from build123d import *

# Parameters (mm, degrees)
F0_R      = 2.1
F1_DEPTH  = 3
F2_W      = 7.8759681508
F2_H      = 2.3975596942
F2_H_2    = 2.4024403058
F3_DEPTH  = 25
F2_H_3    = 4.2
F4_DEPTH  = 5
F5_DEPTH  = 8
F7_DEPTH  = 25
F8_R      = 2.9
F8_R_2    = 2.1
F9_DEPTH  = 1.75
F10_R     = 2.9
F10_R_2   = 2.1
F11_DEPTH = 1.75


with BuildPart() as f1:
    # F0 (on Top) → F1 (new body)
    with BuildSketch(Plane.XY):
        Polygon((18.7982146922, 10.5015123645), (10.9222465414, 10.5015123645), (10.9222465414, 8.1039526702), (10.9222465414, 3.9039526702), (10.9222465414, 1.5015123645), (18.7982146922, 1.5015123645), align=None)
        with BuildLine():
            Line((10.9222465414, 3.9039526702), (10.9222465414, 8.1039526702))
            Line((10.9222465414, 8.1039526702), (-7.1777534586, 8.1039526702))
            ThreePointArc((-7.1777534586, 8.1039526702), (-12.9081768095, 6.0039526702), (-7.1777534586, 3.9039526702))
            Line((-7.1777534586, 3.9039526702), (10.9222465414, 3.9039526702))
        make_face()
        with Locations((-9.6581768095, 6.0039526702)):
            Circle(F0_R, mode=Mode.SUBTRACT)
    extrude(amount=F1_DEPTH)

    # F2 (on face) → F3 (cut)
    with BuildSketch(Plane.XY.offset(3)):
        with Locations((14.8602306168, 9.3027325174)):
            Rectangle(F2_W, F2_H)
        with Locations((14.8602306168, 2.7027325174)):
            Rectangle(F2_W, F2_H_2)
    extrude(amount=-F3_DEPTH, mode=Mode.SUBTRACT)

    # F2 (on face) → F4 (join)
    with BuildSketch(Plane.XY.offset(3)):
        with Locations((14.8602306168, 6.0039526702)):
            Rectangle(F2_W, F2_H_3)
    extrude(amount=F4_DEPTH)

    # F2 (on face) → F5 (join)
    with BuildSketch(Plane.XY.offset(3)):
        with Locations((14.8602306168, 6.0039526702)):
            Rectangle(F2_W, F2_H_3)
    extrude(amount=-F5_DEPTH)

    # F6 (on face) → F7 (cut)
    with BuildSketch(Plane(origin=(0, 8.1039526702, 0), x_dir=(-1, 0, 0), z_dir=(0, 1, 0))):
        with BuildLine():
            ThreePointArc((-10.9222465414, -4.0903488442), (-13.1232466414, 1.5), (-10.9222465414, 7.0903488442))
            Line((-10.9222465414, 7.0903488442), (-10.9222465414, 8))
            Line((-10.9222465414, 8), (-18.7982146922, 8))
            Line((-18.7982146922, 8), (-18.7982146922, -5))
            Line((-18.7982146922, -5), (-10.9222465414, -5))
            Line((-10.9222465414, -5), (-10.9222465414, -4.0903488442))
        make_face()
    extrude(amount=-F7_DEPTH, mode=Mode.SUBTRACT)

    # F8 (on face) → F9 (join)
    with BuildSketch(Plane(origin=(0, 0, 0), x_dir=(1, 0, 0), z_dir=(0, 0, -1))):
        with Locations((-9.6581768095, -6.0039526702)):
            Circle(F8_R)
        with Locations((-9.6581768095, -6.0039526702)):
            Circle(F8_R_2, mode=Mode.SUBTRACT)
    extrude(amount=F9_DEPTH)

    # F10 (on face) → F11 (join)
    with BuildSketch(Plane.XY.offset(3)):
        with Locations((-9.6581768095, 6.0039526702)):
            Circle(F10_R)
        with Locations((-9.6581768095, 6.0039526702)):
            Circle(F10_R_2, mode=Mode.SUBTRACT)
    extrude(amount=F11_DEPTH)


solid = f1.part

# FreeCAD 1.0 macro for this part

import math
import FreeCAD as App
import Part
import Sketcher
from FreeCAD import Vector
Q = App.Units.Quantity

doc = App.newDocument("Part")
params = doc.addObject("Spreadsheet::Sheet", "Params")
for row, (alias, value) in enumerate([
    ("sketch1_diameter", "4.2 mm"),
    ("sketch1_height", "9 mm"),
    ("sketch1_radius", "3.25 mm"),
    ("sketch1_width", "18.1 mm"),
    ("pad1_length", "3 mm"),
    ("pocket1_length", "25 mm"),
    ("sketch3_height", "4.2 mm"),
    ("pad2_length", "5 mm"),
    ("sketch4_height", "4.2 mm"),
    ("pad3_length", "8 mm"),
    ("sketch5_radius", "8.2 mm"),
    ("sketch5_height", "13 mm"),
    ("pocket2_length", "25 mm"),
    ("sketch6_diameter", "5.8 mm"),
    ("sketch6_diameter2", "4.2 mm"),
    ("pad4_length", "1.75 mm"),
    ("sketch7_diameter", "5.8 mm"),
    ("sketch7_diameter2", "4.2 mm"),
    ("pad5_length", "1.75 mm"),
], start=1):
    params.set(f"A{row}", alias)
    params.set(f"B{row}", "=" + value)
    params.setAlias(f"B{row}", alias)

body = doc.addObject("PartDesign::Body", "Body")

# Sketch on XY plane
sketch1 = body.newObject("Sketcher::SketchObject", "Sketch")
sketch1.AttachmentSupport = (doc.getObject("XY_Plane"), [""])
sketch1.MapMode = "FlatFace"
sketch1.addGeometry([
    Part.LineSegment(Vector(18.798215, 10.501512, 0), Vector(10.922247, 10.501512, 0)),  # 0
    Part.LineSegment(Vector(10.922247, 10.501512, 0), Vector(10.922247, 8.103953, 0)),  # 1
    Part.LineSegment(Vector(10.922247, 8.103953, 0), Vector(-7.177753, 8.103953, 0)),  # 2
    Part.ArcOfCircle(Part.Circle(Vector(-9.658177, 6.003953, 0), Vector(0, 0, 1), 3.25), math.radians(40.252242), math.radians(319.747758)),  # 3
    Part.LineSegment(Vector(-7.177753, 3.903953, 0), Vector(10.922247, 3.903953, 0)),  # 4
    Part.LineSegment(Vector(10.922247, 3.903953, 0), Vector(10.922247, 1.501512, 0)),  # 5
    Part.LineSegment(Vector(10.922247, 1.501512, 0), Vector(18.798215, 1.501512, 0)),  # 6
    Part.LineSegment(Vector(18.798215, 1.501512, 0), Vector(18.798215, 10.501512, 0)),  # 7
    Part.Circle(Vector(-9.658177, 6.003953, 0), Vector(0, 0, 1), 2.1),  # 8
], False)
sketch1.addConstraint([
    Sketcher.Constraint("Coincident", 0, 2, 1, 1),
    Sketcher.Constraint("Coincident", 1, 2, 2, 1),
    Sketcher.Constraint("Coincident", 2, 2, 3, 1),
    Sketcher.Constraint("Coincident", 3, 2, 4, 1),
    Sketcher.Constraint("Coincident", 4, 2, 5, 1),
    Sketcher.Constraint("Coincident", 5, 2, 6, 1),
    Sketcher.Constraint("Coincident", 6, 2, 7, 1),
    Sketcher.Constraint("Coincident", 7, 2, 0, 1),
    Sketcher.Constraint("Horizontal", 0),
    Sketcher.Constraint("Vertical", 1),
    Sketcher.Constraint("Horizontal", 2),
    Sketcher.Constraint("Horizontal", 4),
    Sketcher.Constraint("Vertical", 5),
    Sketcher.Constraint("Horizontal", 6),
    Sketcher.Constraint("Vertical", 7),
    Sketcher.Constraint("Coincident", 8, 3, 3, 3),
    Sketcher.Constraint("Vertical", 2, 2, 3, 2),
    Sketcher.Constraint("Vertical", 1, 2, 4, 2),
    Sketcher.Constraint("Diameter", 8, Q("4.2 mm")),
    Sketcher.Constraint("DistanceY", 7, 1, 7, 2, Q("9 mm")),
    Sketcher.Constraint("Radius", 3, Q("3.25 mm")),
    Sketcher.Constraint("DistanceX", 2, 2, 2, 1, Q("18.1 mm")),
    Sketcher.Constraint("DistanceY", 3, 3, 1, 2, Q("2.1 mm")),
    Sketcher.Constraint("DistanceX", 0, 2, 0, 1, Q("7.875968 mm")),
    Sketcher.Constraint("DistanceY", 1, 2, 1, 1, Q("2.39756 mm")),
    Sketcher.Constraint("DistanceX", 3, 3, -1, 1, Q("9.658177 mm")),
    Sketcher.Constraint("DistanceY", -1, 1, 3, 3, Q("6.003953 mm")),
])
sketch1.setExpression("Constraints[18]", "Params.sketch1_diameter")
sketch1.setExpression("Constraints[19]", "Params.sketch1_height")
sketch1.setExpression("Constraints[20]", "Params.sketch1_radius")
sketch1.setExpression("Constraints[21]", "Params.sketch1_width")
pad1 = body.newObject("PartDesign::Pad", "Pad")
pad1.Profile = sketch1
pad1.setExpression("Length", "Params.pad1_length")

# Sketch on XY plane
sketch2 = body.newObject("Sketcher::SketchObject", "Sketch001")
sketch2.AttachmentSupport = (doc.getObject("XY_Plane"), [""])
sketch2.MapMode = "FlatFace"
sketch2.AttachmentOffset = App.Placement(Vector(0, 0, 3), App.Rotation())
sketch2.addGeometry([
    Part.LineSegment(Vector(10.922247, 10.501512, 0), Vector(10.922247, 8.103953, 0)),  # 0
    Part.LineSegment(Vector(10.922247, 8.103953, 0), Vector(18.798215, 8.103953, 0)),  # 1
    Part.LineSegment(Vector(18.798215, 8.103953, 0), Vector(18.798215, 10.501512, 0)),  # 2
    Part.LineSegment(Vector(18.798215, 10.501512, 0), Vector(10.922247, 10.501512, 0)),  # 3
    Part.LineSegment(Vector(10.922247, 3.903953, 0), Vector(10.922247, 1.501512, 0)),  # 4
    Part.LineSegment(Vector(10.922247, 1.501512, 0), Vector(18.798215, 1.501512, 0)),  # 5
    Part.LineSegment(Vector(18.798215, 1.501512, 0), Vector(18.798215, 3.903953, 0)),  # 6
    Part.LineSegment(Vector(18.798215, 3.903953, 0), Vector(10.922247, 3.903953, 0)),  # 7
], False)
sketch2.addConstraint([
    Sketcher.Constraint("Coincident", 0, 2, 1, 1),
    Sketcher.Constraint("Coincident", 1, 2, 2, 1),
    Sketcher.Constraint("Coincident", 2, 2, 3, 1),
    Sketcher.Constraint("Coincident", 3, 2, 0, 1),
    Sketcher.Constraint("Coincident", 4, 2, 5, 1),
    Sketcher.Constraint("Coincident", 5, 2, 6, 1),
    Sketcher.Constraint("Coincident", 6, 2, 7, 1),
    Sketcher.Constraint("Coincident", 7, 2, 4, 1),
    Sketcher.Constraint("Vertical", 0),
    Sketcher.Constraint("Horizontal", 1),
    Sketcher.Constraint("Vertical", 2),
    Sketcher.Constraint("Horizontal", 3),
    Sketcher.Constraint("Vertical", 4),
    Sketcher.Constraint("Horizontal", 5),
    Sketcher.Constraint("Vertical", 6),
    Sketcher.Constraint("Horizontal", 7),
    Sketcher.Constraint("Vertical", 3, 2, 4, 2),
    Sketcher.Constraint("Vertical", 2, 2, 5, 2),
    Sketcher.Constraint("DistanceY", 4, 2, 3, 2, Q("9 mm")),
    Sketcher.Constraint("DistanceY", 6, 2, 1, 2, Q("4.2 mm")),
    Sketcher.Constraint("DistanceX", 1, 1, 1, 2, Q("7.875968 mm")),
    Sketcher.Constraint("DistanceY", 0, 2, 0, 1, Q("2.39756 mm")),
    Sketcher.Constraint("DistanceX", -1, 1, 0, 2, Q("10.922247 mm")),
    Sketcher.Constraint("DistanceY", -1, 1, 0, 2, Q("8.103953 mm")),
])
pocket1 = body.newObject("PartDesign::Pocket", "Pocket")
pocket1.Profile = sketch2
pocket1.setExpression("Length", "Params.pocket1_length")

# Sketch on XY plane
sketch3 = body.newObject("Sketcher::SketchObject", "Sketch002")
sketch3.AttachmentSupport = (doc.getObject("XY_Plane"), [""])
sketch3.MapMode = "FlatFace"
sketch3.AttachmentOffset = App.Placement(Vector(0, 0, 3), App.Rotation())
sketch3.addGeometry([
    Part.LineSegment(Vector(10.922247, 8.103953, 0), Vector(10.922247, 3.903953, 0)),
    Part.LineSegment(Vector(10.922247, 3.903953, 0), Vector(18.798215, 3.903953, 0)),
    Part.LineSegment(Vector(18.798215, 3.903953, 0), Vector(18.798215, 8.103953, 0)),
    Part.LineSegment(Vector(18.798215, 8.103953, 0), Vector(10.922247, 8.103953, 0)),
], False)
sketch3.addConstraint([
    Sketcher.Constraint("Coincident", 0, 2, 1, 1),
    Sketcher.Constraint("Coincident", 1, 2, 2, 1),
    Sketcher.Constraint("Coincident", 2, 2, 3, 1),
    Sketcher.Constraint("Coincident", 3, 2, 0, 1),
    Sketcher.Constraint("Vertical", 0),
    Sketcher.Constraint("Horizontal", 1),
    Sketcher.Constraint("Vertical", 2),
    Sketcher.Constraint("Horizontal", 3),
    Sketcher.Constraint("DistanceY", 0, 2, 0, 1, Q("4.2 mm")),
    Sketcher.Constraint("DistanceX", 1, 1, 1, 2, Q("7.875968 mm")),
    Sketcher.Constraint("DistanceX", -1, 1, 0, 2, Q("10.922247 mm")),
    Sketcher.Constraint("DistanceY", -1, 1, 0, 2, Q("3.903953 mm")),
])
sketch3.setExpression("Constraints[8]", "Params.sketch3_height")
pad2 = body.newObject("PartDesign::Pad", "Pad001")
pad2.Profile = sketch3
pad2.setExpression("Length", "Params.pad2_length")

# Sketch on XY plane
sketch4 = body.newObject("Sketcher::SketchObject", "Sketch003")
sketch4.AttachmentSupport = (doc.getObject("XY_Plane"), [""])
sketch4.MapMode = "FlatFace"
sketch4.AttachmentOffset = App.Placement(Vector(0, 0, 3), App.Rotation())
sketch4.addGeometry([
    Part.LineSegment(Vector(10.922247, 8.103953, 0), Vector(10.922247, 3.903953, 0)),
    Part.LineSegment(Vector(10.922247, 3.903953, 0), Vector(18.798215, 3.903953, 0)),
    Part.LineSegment(Vector(18.798215, 3.903953, 0), Vector(18.798215, 8.103953, 0)),
    Part.LineSegment(Vector(18.798215, 8.103953, 0), Vector(10.922247, 8.103953, 0)),
], False)
sketch4.addConstraint([
    Sketcher.Constraint("Coincident", 0, 2, 1, 1),
    Sketcher.Constraint("Coincident", 1, 2, 2, 1),
    Sketcher.Constraint("Coincident", 2, 2, 3, 1),
    Sketcher.Constraint("Coincident", 3, 2, 0, 1),
    Sketcher.Constraint("Vertical", 0),
    Sketcher.Constraint("Horizontal", 1),
    Sketcher.Constraint("Vertical", 2),
    Sketcher.Constraint("Horizontal", 3),
    Sketcher.Constraint("DistanceY", 0, 2, 0, 1, Q("4.2 mm")),
    Sketcher.Constraint("DistanceX", 1, 1, 1, 2, Q("7.875968 mm")),
    Sketcher.Constraint("DistanceX", -1, 1, 0, 2, Q("10.922247 mm")),
    Sketcher.Constraint("DistanceY", -1, 1, 0, 2, Q("3.903953 mm")),
])
sketch4.setExpression("Constraints[8]", "Params.sketch4_height")
pad3 = body.newObject("PartDesign::Pad", "Pad002")
pad3.Profile = sketch4
pad3.setExpression("Length", "Params.pad3_length")
pad3.Reversed = True

# Sketch on XZ plane
sketch5 = body.newObject("Sketcher::SketchObject", "Sketch004")
sketch5.AttachmentSupport = (doc.getObject("XZ_Plane"), [""])
sketch5.MapMode = "FlatFace"
sketch5.AttachmentOffset = App.Placement(Vector(0, 0, -8.103953), App.Rotation())
sketch5.addGeometry([
    Part.ArcOfCircle(Part.Circle(Vector(4.923247, 1.5, 0), Vector(0, 0, 1), 8.2), math.radians(-42.980535), math.radians(42.980535)),  # 0
    Part.LineSegment(Vector(10.922247, 7.090349, 0), Vector(10.922247, 8, 0)),  # 1
    Part.LineSegment(Vector(10.922247, 8, 0), Vector(18.798215, 8, 0)),  # 2
    Part.LineSegment(Vector(18.798215, 8, 0), Vector(18.798215, -5, 0)),  # 3
    Part.LineSegment(Vector(18.798215, -5, 0), Vector(10.922247, -5, 0)),  # 4
    Part.LineSegment(Vector(10.922247, -5, 0), Vector(10.922247, -4.090349, 0)),  # 5
], False)
sketch5.addConstraint([
    Sketcher.Constraint("Coincident", 0, 2, 1, 1),
    Sketcher.Constraint("Coincident", 1, 2, 2, 1),
    Sketcher.Constraint("Coincident", 2, 2, 3, 1),
    Sketcher.Constraint("Coincident", 3, 2, 4, 1),
    Sketcher.Constraint("Coincident", 4, 2, 5, 1),
    Sketcher.Constraint("Coincident", 5, 2, 0, 1),
    Sketcher.Constraint("Vertical", 1),
    Sketcher.Constraint("Horizontal", 2),
    Sketcher.Constraint("Vertical", 3),
    Sketcher.Constraint("Horizontal", 4),
    Sketcher.Constraint("Vertical", 5),
    Sketcher.Constraint("Vertical", 1, 2, 4, 2),
    Sketcher.Constraint("Equal", 1, 5),
    Sketcher.Constraint("Radius", 0, Q("8.2 mm")),
    Sketcher.Constraint("DistanceY", 3, 2, 3, 1, Q("13 mm")),
    Sketcher.Constraint("DistanceY", -1, 1, 1, 2, Q("8 mm")),
    Sketcher.Constraint("DistanceX", 0, 3, 0, 2, Q("5.999 mm")),
    Sketcher.Constraint("DistanceX", 2, 1, 2, 2, Q("7.875968 mm")),
    Sketcher.Constraint("DistanceX", -1, 1, 0, 3, Q("4.923247 mm")),
])
sketch5.setExpression("Constraints[13]", "Params.sketch5_radius")
sketch5.setExpression("Constraints[14]", "Params.sketch5_height")
pocket2 = body.newObject("PartDesign::Pocket", "Pocket001")
pocket2.Profile = sketch5
pocket2.setExpression("Length", "Params.pocket2_length")
pocket2.Reversed = True

# Sketch on XY plane
sketch6 = body.newObject("Sketcher::SketchObject", "Sketch005")
sketch6.AttachmentSupport = (doc.getObject("XY_Plane"), [""])
sketch6.MapMode = "FlatFace"
sketch6.addGeometry([
    Part.Circle(Vector(-9.658177, 6.003953, 0), Vector(0, 0, 1), 2.9),
    Part.Circle(Vector(-9.658177, 6.003953, 0), Vector(0, 0, 1), 2.1),
], False)
sketch6.addConstraint([
    Sketcher.Constraint("Coincident", 1, 3, 0, 3),
    Sketcher.Constraint("Diameter", 0, Q("5.8 mm")),
    Sketcher.Constraint("Diameter", 1, Q("4.2 mm")),
    Sketcher.Constraint("DistanceX", 0, 3, -1, 1, Q("9.658177 mm")),
    Sketcher.Constraint("DistanceY", -1, 1, 0, 3, Q("6.003953 mm")),
])
sketch6.setExpression("Constraints[1]", "Params.sketch6_diameter")
sketch6.setExpression("Constraints[2]", "Params.sketch6_diameter2")
pad4 = body.newObject("PartDesign::Pad", "Pad003")
pad4.Profile = sketch6
pad4.setExpression("Length", "Params.pad4_length")
pad4.Reversed = True

# Sketch on XY plane
sketch7 = body.newObject("Sketcher::SketchObject", "Sketch006")
sketch7.AttachmentSupport = (doc.getObject("XY_Plane"), [""])
sketch7.MapMode = "FlatFace"
sketch7.AttachmentOffset = App.Placement(Vector(0, 0, 3), App.Rotation())
sketch7.addGeometry([
    Part.Circle(Vector(-9.658177, 6.003953, 0), Vector(0, 0, 1), 2.9),
    Part.Circle(Vector(-9.658177, 6.003953, 0), Vector(0, 0, 1), 2.1),
], False)
sketch7.addConstraint([
    Sketcher.Constraint("Coincident", 1, 3, 0, 3),
    Sketcher.Constraint("Diameter", 0, Q("5.8 mm")),
    Sketcher.Constraint("Diameter", 1, Q("4.2 mm")),
    Sketcher.Constraint("DistanceX", 0, 3, -1, 1, Q("9.658177 mm")),
    Sketcher.Constraint("DistanceY", -1, 1, 0, 3, Q("6.003953 mm")),
])
sketch7.setExpression("Constraints[1]", "Params.sketch7_diameter")
sketch7.setExpression("Constraints[2]", "Params.sketch7_diameter2")
pad5 = body.newObject("PartDesign::Pad", "Pad004")
pad5.Profile = sketch7
pad5.setExpression("Length", "Params.pad5_length")

doc.recompute()
